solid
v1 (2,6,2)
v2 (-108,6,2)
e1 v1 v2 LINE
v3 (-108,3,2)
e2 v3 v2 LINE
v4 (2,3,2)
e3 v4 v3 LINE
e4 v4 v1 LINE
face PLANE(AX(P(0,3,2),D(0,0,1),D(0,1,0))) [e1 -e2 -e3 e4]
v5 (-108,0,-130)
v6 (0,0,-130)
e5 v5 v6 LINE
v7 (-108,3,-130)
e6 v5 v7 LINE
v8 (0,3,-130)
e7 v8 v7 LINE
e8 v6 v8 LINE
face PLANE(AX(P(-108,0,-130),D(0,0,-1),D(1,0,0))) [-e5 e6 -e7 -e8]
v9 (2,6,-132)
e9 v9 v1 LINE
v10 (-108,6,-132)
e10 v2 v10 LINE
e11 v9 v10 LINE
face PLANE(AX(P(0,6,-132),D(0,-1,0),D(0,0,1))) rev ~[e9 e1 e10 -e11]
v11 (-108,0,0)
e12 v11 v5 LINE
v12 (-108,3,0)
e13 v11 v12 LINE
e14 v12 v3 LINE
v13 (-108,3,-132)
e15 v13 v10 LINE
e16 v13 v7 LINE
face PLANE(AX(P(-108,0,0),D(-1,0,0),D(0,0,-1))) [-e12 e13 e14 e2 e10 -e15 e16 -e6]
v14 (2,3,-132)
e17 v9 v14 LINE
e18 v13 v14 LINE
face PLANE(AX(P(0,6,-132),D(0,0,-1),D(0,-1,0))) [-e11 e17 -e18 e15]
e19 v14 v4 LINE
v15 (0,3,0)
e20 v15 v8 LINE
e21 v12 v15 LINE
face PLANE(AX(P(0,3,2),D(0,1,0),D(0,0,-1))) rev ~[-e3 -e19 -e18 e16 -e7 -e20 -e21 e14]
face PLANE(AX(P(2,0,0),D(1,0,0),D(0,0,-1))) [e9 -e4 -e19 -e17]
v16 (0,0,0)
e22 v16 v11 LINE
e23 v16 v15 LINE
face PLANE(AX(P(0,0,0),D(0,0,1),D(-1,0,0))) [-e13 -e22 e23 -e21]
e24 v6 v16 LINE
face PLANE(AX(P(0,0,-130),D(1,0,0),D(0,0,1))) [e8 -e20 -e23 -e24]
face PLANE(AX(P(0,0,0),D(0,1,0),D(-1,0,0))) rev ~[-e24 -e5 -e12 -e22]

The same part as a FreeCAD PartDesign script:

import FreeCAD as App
import Part
import Sketcher
from FreeCAD import Vector
Q = App.Units.Quantity

doc = App.newDocument("Part")
body = doc.addObject("PartDesign::Body", "Body")

sketch1 = body.newObject("Sketcher::SketchObject", "Sketch")
sketch1.AttachmentSupport = (doc.getObject("XZ_Plane"), [""])
sketch1.MapMode = "FlatFace"
sketch1.addGeometry([
    Part.LineSegment(Vector(-108, 0, 0), Vector(0, 0, 0)),
    Part.LineSegment(Vector(0, 0, 0), Vector(0, -130, 0)),
    Part.LineSegment(Vector(0, -130, 0), Vector(-108, -130, 0)),
    Part.LineSegment(Vector(-108, -130, 0), Vector(-108, 0, 0)),
], False)
sketch1.addConstraint([
    Sketcher.Constraint("Coincident", 0, 2, 1, 1),
    Sketcher.Constraint("Coincident", 1, 2, 2, 1),
    Sketcher.Constraint("Coincident", 2, 2, 3, 1),
    Sketcher.Constraint("Coincident", 3, 2, 0, 1),
    Sketcher.Constraint("Horizontal", 0),
    Sketcher.Constraint("Vertical", 1),
    Sketcher.Constraint("Horizontal", 2),
    Sketcher.Constraint("Vertical", 3),
    Sketcher.Constraint("Coincident", 0, 2, -1, 1),
    Sketcher.Constraint("DistanceX", 0, 1, 0, 2, Q("108 mm")),
    Sketcher.Constraint("DistanceY", 1, 2, 1, 1, Q("130 mm")),
])
pad1 = body.newObject("PartDesign::Pad", "Pad")
pad1.Profile = sketch1
pad1.Length = 6
pad1.Reversed = True

sketch2 = body.newObject("Sketcher::SketchObject", "Sketch001")
sketch2.AttachmentSupport = (doc.getObject("XY_Plane"), [""])
sketch2.MapMode = "FlatFace"
sketch2.addGeometry([
    Part.LineSegment(Vector(-108, 6, 0), Vector(-108, 3, 0)),
    Part.LineSegment(Vector(-108, 3, 0), Vector(0, 3, 0)),
    Part.LineSegment(Vector(0, 3, 0), Vector(0, 6, 0)),
    Part.LineSegment(Vector(0, 6, 0), Vector(-108, 6, 0)),
], False)
sketch2.addConstraint([
    Sketcher.Constraint("Coincident", 0, 2, 1, 1),
    Sketcher.Constraint("Coincident", 1, 2, 2, 1),
    Sketcher.Constraint("Coincident", 2, 2, 3, 1),
    Sketcher.Constraint("Coincident", 3, 2, 0, 1),
    Sketcher.Constraint("Vertical", 0),
    Sketcher.Constraint("Horizontal", 1),
    Sketcher.Constraint("Vertical", 2),
    Sketcher.Constraint("Horizontal", 3),
    Sketcher.Constraint("PointOnObject", 1, 2, -2),
    Sketcher.Constraint("DistanceY", 0, 2, 0, 1, Q("3 mm")),
    Sketcher.Constraint("DistanceY", -1, 1, 0, 2, Q("3 mm")),
    Sketcher.Constraint("DistanceX", 1, 1, 1, 2, Q("108 mm")),
])
pad2 = body.newObject("PartDesign::Pad", "Pad001")
pad2.Profile = sketch2
pad2.Type = "TwoLengths"
pad2.Length = 2
pad2.Length2 = 132

sketch3 = body.newObject("Sketcher::SketchObject", "Sketch002")
sketch3.AttachmentSupport = (doc.getObject("YZ_Plane"), [""])
sketch3.MapMode = "FlatFace"
sketch3.addGeometry([
    Part.LineSegment(Vector(3, 2, 0), Vector(3, -132, 0)),
    Part.LineSegment(Vector(3, -132, 0), Vector(6, -132, 0)),
    Part.LineSegment(Vector(6, -132, 0), Vector(6, 2, 0)),
    Part.LineSegment(Vector(6, 2, 0), Vector(3, 2, 0)),
], False)
sketch3.addConstraint([
    Sketcher.Constraint("Coincident", 0, 2, 1, 1),
    Sketcher.Constraint("Coincident", 1, 2, 2, 1),
    Sketcher.Constraint("Coincident", 2, 2, 3, 1),
    Sketcher.Constraint("Coincident", 3, 2, 0, 1),
    Sketcher.Constraint("Vertical", 0),
    Sketcher.Constraint("Horizontal", 1),
    Sketcher.Constraint("Vertical", 2),
    Sketcher.Constraint("Horizontal", 3),
    Sketcher.Constraint("DistanceX", 1, 1, 1, 2, Q("3 mm")),
    Sketcher.Constraint("DistanceY", 0, 2, 0, 1, Q("134 mm")),
    Sketcher.Constraint("DistanceX", -1, 1, 0, 2, Q("3 mm")),
    Sketcher.Constraint("DistanceY", 0, 2, -1, 1, Q("132 mm")),
])
pad3 = body.newObject("PartDesign::Pad", "Pad002")
pad3.Profile = sketch3
pad3.Length = 2

doc.recompute()
